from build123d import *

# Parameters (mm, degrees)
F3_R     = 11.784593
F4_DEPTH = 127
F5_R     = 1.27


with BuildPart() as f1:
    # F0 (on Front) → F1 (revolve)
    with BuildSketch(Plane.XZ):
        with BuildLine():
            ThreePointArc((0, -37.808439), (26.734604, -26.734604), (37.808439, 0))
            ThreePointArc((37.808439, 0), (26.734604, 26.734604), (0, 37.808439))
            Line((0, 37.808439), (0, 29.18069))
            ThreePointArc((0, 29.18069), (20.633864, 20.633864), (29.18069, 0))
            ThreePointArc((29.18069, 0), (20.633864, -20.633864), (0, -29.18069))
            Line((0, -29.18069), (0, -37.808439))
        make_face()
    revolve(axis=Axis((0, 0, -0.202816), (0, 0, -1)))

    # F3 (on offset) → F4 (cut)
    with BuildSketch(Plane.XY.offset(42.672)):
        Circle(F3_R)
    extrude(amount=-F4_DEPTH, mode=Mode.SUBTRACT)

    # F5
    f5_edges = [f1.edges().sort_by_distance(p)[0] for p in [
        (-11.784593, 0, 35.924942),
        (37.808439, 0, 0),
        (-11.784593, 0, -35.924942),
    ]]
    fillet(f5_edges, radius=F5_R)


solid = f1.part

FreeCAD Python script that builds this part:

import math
import FreeCAD as App
import Part
import Sketcher
from FreeCAD import Vector
Q = App.Units.Quantity


def edges_at(feature, points):
    """Names of the edges that pass closest to the given points."""
    edges = feature.Shape.Edges
    near = lambda p: min(range(len(edges)), key=lambda i: edges[i].distToShape(Part.Vertex(*p))[0])
    return sorted({f"Edge{near(p) + 1}" for p in points})

doc = App.newDocument("Part")
body = doc.addObject("PartDesign::Body", "Body")

# Sketch on XZ plane
sketch1 = body.newObject("Sketcher::SketchObject", "Sketch")
sketch1.AttachmentSupport = (doc.getObject("XZ_Plane"), [""])
sketch1.MapMode = "FlatFace"
sketch1.addGeometry([
    Part.ArcOfCircle(Part.Circle(Vector(0, 0, 0), Vector(0, 0, 1), 38), math.radians(-90), math.radians(0)),  # 0
    Part.ArcOfCircle(Part.Circle(Vector(0, 0, 0), Vector(0, 0, 1), 38), math.radians(0), math.radians(90)),  # 1
    Part.LineSegment(Vector(0, 38, 0), Vector(0, 29, 0)),  # 2
    Part.ArcOfCircle(Part.Circle(Vector(0, 0, 0), Vector(0, 0, 1), 29), math.radians(0), math.radians(90)),  # 3
    Part.ArcOfCircle(Part.Circle(Vector(0, 0, 0), Vector(0, 0, 1), 29), math.radians(-90), math.radians(0)),  # 4
    Part.LineSegment(Vector(0, -29, 0), Vector(0, -38, 0)),  # 5
], False)
sketch1.addConstraint([
    Sketcher.Constraint("Tangent", 0, 2, 1, 1),
    Sketcher.Constraint("Coincident", 1, 2, 2, 1),
    Sketcher.Constraint("Coincident", 2, 2, 3, 2),
    Sketcher.Constraint("Tangent", 3, 1, 4, 2),
    Sketcher.Constraint("Coincident", 4, 1, 5, 1),
    Sketcher.Constraint("Coincident", 5, 2, 0, 1),
    Sketcher.Constraint("Vertical", 2),
    Sketcher.Constraint("Vertical", 5),
    Sketcher.Constraint("Coincident", 0, 3, -1, 1),
    Sketcher.Constraint("Coincident", 3, 3, -1, 1),
    Sketcher.Constraint("Equal", 0, 1),
    Sketcher.Constraint("Equal", 3, 4),
    Sketcher.Constraint("PointOnObject", 0, 2, -1),
    Sketcher.Constraint("PointOnObject", 1, 2, -2),
    Sketcher.Constraint("PointOnObject", 3, 1, -1),
    Sketcher.Constraint("PointOnObject", 4, 1, -2),
    Sketcher.Constraint("Radius", 3, 29.180689),
    Sketcher.Constraint("Radius", 0, 37.808438),
])
revolution = body.newObject("PartDesign::Revolution", "Revolution")
revolution.Profile = sketch1
revolution.ReferenceAxis = (sketch1, ["V_Axis"])
revolution.Angle = 360

# Sketch on XY plane
sketch2 = body.newObject("Sketcher::SketchObject", "Sketch001")
sketch2.AttachmentSupport = (doc.getObject("XY_Plane"), [""])
sketch2.MapMode = "FlatFace"
sketch2.AttachmentOffset = App.Placement(Vector(0, 0, 1.68 * 25.4), App.Rotation())
sketch2.addGeometry(Part.Circle(Vector(0, 0, 0), Vector(0, 0, 1), 12), False)
sketch2.addConstraint([
    Sketcher.Constraint("Coincident", 0, 3, -1, 1),
    Sketcher.Constraint("Diameter", 0, 23.569186),
])
pocket1 = body.newObject("PartDesign::Pocket", "Pocket")
pocket1.Profile = sketch2
pocket1.Length = Q("5 in")
doc.recompute()

fillet = body.newObject("PartDesign::Fillet", "Fillet")
fillet.Base = (pocket1, edges_at(pocket1, [(-11.785, 0, 35.925), (30.619, 0, -22.18), (-11.785, 0, -35.925)]))
fillet.Radius = Q("0.05 in")

doc.recompute()
